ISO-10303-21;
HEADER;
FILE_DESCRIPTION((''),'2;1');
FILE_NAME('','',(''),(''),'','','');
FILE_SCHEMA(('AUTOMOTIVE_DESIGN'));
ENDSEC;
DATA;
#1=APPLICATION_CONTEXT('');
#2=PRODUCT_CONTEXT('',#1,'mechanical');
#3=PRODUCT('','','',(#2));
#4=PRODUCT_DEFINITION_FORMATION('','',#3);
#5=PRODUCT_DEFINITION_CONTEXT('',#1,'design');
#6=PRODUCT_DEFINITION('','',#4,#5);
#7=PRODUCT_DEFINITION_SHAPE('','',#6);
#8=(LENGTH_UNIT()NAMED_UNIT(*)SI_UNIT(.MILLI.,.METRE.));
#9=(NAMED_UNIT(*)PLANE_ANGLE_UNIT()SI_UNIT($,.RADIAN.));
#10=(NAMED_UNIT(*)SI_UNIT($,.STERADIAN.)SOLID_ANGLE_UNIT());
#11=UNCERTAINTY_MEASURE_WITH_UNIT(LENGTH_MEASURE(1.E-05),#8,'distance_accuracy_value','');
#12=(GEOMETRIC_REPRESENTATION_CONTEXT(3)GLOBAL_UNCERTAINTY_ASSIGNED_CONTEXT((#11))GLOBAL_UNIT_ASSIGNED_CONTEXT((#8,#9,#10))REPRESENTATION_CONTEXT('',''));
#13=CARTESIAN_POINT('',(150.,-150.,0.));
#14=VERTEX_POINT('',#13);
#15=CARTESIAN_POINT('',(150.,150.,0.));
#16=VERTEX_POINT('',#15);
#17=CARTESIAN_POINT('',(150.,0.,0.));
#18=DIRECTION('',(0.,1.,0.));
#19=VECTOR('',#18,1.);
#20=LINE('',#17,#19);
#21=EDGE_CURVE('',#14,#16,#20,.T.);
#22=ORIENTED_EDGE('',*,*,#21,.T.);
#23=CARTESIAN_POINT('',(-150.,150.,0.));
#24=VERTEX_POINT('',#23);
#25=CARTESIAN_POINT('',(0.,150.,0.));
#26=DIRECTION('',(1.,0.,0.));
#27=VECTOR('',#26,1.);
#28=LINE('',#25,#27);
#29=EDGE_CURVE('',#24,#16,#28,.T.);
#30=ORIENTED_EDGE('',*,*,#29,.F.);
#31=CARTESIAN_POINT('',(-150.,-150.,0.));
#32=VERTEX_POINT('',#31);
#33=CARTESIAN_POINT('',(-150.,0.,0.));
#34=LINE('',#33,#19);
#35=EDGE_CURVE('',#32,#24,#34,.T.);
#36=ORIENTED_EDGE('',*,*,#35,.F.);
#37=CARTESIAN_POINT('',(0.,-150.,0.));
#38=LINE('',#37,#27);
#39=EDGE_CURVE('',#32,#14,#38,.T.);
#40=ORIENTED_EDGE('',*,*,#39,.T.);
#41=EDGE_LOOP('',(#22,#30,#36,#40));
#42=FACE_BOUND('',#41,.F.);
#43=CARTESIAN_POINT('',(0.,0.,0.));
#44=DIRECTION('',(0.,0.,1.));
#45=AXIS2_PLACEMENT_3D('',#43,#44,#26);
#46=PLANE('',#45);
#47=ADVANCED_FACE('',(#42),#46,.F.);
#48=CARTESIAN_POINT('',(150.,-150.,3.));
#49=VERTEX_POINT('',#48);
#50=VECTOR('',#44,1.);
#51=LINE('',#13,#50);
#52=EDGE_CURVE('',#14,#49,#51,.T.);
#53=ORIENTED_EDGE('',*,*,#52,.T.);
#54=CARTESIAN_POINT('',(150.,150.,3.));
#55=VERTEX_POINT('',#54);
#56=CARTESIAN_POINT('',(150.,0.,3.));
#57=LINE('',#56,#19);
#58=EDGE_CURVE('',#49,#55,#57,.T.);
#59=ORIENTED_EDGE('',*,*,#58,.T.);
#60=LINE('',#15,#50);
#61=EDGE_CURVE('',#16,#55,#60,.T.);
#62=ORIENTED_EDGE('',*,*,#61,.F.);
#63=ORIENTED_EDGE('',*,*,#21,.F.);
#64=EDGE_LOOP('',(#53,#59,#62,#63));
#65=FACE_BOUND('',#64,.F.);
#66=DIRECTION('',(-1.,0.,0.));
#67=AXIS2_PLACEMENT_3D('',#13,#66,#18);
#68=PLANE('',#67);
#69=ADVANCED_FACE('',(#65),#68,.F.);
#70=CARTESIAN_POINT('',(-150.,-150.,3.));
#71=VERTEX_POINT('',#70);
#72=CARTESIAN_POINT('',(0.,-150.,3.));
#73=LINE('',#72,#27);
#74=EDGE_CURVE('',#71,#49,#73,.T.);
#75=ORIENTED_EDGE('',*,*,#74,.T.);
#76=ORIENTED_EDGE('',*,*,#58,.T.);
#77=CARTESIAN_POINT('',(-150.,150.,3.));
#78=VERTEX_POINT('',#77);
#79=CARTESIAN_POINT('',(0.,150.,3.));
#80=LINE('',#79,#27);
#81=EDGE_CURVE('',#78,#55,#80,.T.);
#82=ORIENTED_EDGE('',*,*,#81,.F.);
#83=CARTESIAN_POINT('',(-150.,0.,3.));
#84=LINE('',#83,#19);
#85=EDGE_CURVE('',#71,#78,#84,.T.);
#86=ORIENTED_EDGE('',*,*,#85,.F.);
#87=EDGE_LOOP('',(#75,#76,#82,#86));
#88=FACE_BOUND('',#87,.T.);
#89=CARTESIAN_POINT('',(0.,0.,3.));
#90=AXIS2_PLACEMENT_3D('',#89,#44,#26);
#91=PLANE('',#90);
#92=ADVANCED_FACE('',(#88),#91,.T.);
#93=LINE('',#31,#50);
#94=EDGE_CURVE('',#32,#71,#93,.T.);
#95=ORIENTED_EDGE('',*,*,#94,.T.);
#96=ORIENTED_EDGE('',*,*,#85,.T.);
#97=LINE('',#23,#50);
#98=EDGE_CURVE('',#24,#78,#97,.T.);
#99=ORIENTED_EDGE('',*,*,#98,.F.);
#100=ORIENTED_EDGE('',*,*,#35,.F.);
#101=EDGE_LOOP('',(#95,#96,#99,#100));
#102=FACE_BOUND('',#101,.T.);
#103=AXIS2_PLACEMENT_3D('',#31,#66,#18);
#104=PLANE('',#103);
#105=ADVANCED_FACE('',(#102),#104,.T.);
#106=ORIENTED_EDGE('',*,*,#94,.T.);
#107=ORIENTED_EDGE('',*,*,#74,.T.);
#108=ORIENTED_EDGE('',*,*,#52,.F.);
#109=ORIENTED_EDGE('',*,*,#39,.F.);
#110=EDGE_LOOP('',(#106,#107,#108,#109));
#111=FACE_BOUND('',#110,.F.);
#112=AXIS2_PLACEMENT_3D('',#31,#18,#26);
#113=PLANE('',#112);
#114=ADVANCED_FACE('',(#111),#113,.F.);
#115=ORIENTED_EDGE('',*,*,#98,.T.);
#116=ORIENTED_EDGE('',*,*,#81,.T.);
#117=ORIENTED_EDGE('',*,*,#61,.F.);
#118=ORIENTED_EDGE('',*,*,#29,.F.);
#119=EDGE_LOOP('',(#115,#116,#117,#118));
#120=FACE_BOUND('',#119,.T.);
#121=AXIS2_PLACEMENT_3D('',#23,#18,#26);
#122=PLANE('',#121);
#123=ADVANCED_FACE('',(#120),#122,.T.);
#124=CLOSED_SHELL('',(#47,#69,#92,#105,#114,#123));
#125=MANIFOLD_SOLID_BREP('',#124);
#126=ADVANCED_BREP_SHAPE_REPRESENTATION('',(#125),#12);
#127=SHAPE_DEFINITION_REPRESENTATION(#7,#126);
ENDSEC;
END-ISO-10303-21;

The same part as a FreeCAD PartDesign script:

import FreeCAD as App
import Part
import Sketcher
Q = App.Units.Quantity


def add_polygon(sketch, points):
    """Adds a closed chain of lines whose ends are joined by coincident constraints."""
    first, n = sketch.GeometryCount, len(points)
    for a, b in zip(points, points[1:] + points[:1]):
        sketch.addGeometry(Part.LineSegment(App.Vector(*a, 0), App.Vector(*b, 0)), False)
    for i in range(n):
        sketch.addConstraint(Sketcher.Constraint("Coincident", first + i, 2, first + (i + 1) % n, 1))

doc = App.newDocument("Part")
body = doc.addObject("PartDesign::Body", "Body")

sketch1 = doc.addObject("Sketcher::SketchObject", "Sketch")
body.addObject(sketch1)
sketch1.AttachmentSupport = (doc.XY_Plane, [""])
sketch1.MapMode = "FlatFace"
add_polygon(sketch1, [(-150, 150), (-150, -150), (150, -150), (150, 150)])
sketch1.addConstraint(Sketcher.Constraint("Vertical", 0))
sketch1.addConstraint(Sketcher.Constraint("Horizontal", 1))
sketch1.addConstraint(Sketcher.Constraint("Vertical", 2))
sketch1.addConstraint(Sketcher.Constraint("Horizontal", 3))
sketch1.addConstraint(Sketcher.Constraint("Symmetric", 0, 2, 2, 2, -1, 1))
sketch1.addConstraint(Sketcher.Constraint("Equal", 3, 0))
sketch1.addConstraint(Sketcher.Constraint("DistanceX", 1, 1, 1, 2, Q("300 mm")))
pad1 = doc.addObject("PartDesign::Pad", "Pad")
body.addObject(pad1)
pad1.Profile = sketch1
pad1.Length = 3

doc.recompute()
